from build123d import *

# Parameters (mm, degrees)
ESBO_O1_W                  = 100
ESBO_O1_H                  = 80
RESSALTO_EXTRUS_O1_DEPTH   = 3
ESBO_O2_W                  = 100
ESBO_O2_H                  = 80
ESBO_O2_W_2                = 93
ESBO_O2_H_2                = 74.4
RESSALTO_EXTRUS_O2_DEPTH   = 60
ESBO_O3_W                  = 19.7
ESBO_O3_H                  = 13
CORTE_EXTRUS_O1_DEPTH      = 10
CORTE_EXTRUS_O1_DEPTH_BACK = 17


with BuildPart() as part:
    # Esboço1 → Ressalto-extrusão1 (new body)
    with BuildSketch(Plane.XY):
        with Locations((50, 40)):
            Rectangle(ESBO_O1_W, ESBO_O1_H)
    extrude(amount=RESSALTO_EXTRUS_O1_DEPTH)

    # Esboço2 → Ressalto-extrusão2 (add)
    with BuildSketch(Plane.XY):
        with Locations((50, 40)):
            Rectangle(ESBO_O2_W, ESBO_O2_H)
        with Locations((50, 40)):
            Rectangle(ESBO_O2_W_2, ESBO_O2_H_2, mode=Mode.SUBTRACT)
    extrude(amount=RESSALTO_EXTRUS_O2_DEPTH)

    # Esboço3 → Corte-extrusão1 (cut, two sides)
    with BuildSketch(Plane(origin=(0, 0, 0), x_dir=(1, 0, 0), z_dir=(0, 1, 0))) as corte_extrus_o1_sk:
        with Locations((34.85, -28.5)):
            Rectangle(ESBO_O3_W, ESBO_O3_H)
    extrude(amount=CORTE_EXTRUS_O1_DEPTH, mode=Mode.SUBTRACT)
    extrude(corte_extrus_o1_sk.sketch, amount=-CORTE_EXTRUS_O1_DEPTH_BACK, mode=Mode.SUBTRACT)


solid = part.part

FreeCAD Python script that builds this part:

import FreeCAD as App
import Part
import Sketcher


def add_polygon(sketch, points):
    """Adds a closed chain of lines whose ends are joined by coincident constraints."""
    first, n = sketch.GeometryCount, len(points)
    for a, b in zip(points, points[1:] + points[:1]):
        sketch.addGeometry(Part.LineSegment(App.Vector(*a, 0), App.Vector(*b, 0)), False)
    for i in range(n):
        sketch.addConstraint(Sketcher.Constraint("Coincident", first + i, 2, first + (i + 1) % n, 1))

doc = App.newDocument("Part")
body = doc.addObject("PartDesign::Body", "Body")

sketch1 = body.newObject("Sketcher::SketchObject", "Sketch")
sketch1.AttachmentSupport = (doc.getObject("XY_Plane"), [""])
sketch1.MapMode = "FlatFace"
add_polygon(sketch1, [(0, 80), (0, 0), (100, 0), (100, 80)])
sketch1.addConstraint([
    Sketcher.Constraint("Vertical", 0),
    Sketcher.Constraint("Horizontal", 1),
    Sketcher.Constraint("Vertical", 2),
    Sketcher.Constraint("Horizontal", 3),
    Sketcher.Constraint("Coincident", 0, 2, -1, 1),
    Sketcher.Constraint("DistanceX", 1, 1, 1, 2, 100.0),
    Sketcher.Constraint("DistanceY", 0, 2, 0, 1, 80.0),
])
pad1 = body.newObject("PartDesign::Pad", "Pad")
pad1.Profile = sketch1
pad1.Length = 3

sketch2 = body.newObject("Sketcher::SketchObject", "Sketch001")
sketch2.AttachmentSupport = (doc.getObject("XY_Plane"), [""])
sketch2.MapMode = "FlatFace"
add_polygon(sketch2, [(0, 80), (0, 0), (100, 0), (100, 80)])
add_polygon(sketch2, [(96, 3), (4, 3), (4, 77), (96, 77)])
sketch2.addConstraint([
    Sketcher.Constraint("Vertical", 0),
    Sketcher.Constraint("Horizontal", 1),
    Sketcher.Constraint("Vertical", 2),
    Sketcher.Constraint("Horizontal", 3),
    Sketcher.Constraint("Horizontal", 4),
    Sketcher.Constraint("Vertical", 5),
    Sketcher.Constraint("Horizontal", 6),
    Sketcher.Constraint("Vertical", 7),
    Sketcher.Constraint("Coincident", 0, 2, -1, 1),
    Sketcher.Constraint("DistanceX", 1, 1, 1, 2, 100.0),
    Sketcher.Constraint("DistanceX", 4, 2, 4, 1, 93.0),
    Sketcher.Constraint("DistanceY", 0, 2, 0, 1, 80.0),
    Sketcher.Constraint("DistanceY", 5, 1, 5, 2, 74.4),
    Sketcher.Constraint("DistanceX", -1, 1, 4, 2, 3.5),
    Sketcher.Constraint("DistanceY", -1, 1, 4, 2, 2.8),
])
pad2 = body.newObject("PartDesign::Pad", "Pad001")
pad2.Profile = sketch2
pad2.Length = 60

sketch3 = body.newObject("Sketcher::SketchObject", "Sketch002")
sketch3.AttachmentSupport = (doc.getObject("XZ_Plane"), [""])
sketch3.MapMode = "FlatFace"
add_polygon(sketch3, [(25, 22), (25, 35), (45, 35), (45, 22)])
sketch3.addConstraint([
    Sketcher.Constraint("Vertical", 0),
    Sketcher.Constraint("Horizontal", 1),
    Sketcher.Constraint("Vertical", 2),
    Sketcher.Constraint("Horizontal", 3),
    Sketcher.Constraint("DistanceY", 0, 1, 0, 2, 13.0),
    Sketcher.Constraint("DistanceX", 1, 1, 1, 2, 19.7),
    Sketcher.Constraint("DistanceX", -1, 1, 0, 2, 25.0),
    Sketcher.Constraint("DistanceY", -1, 1, 0, 2, 35.0),
])
pocket1 = body.newObject("PartDesign::Pocket", "Pocket")
pocket1.Profile = sketch3
pocket1.Type = "TwoLengths"
pocket1.Length = 10
pocket1.Length2 = 17

doc.recompute()
